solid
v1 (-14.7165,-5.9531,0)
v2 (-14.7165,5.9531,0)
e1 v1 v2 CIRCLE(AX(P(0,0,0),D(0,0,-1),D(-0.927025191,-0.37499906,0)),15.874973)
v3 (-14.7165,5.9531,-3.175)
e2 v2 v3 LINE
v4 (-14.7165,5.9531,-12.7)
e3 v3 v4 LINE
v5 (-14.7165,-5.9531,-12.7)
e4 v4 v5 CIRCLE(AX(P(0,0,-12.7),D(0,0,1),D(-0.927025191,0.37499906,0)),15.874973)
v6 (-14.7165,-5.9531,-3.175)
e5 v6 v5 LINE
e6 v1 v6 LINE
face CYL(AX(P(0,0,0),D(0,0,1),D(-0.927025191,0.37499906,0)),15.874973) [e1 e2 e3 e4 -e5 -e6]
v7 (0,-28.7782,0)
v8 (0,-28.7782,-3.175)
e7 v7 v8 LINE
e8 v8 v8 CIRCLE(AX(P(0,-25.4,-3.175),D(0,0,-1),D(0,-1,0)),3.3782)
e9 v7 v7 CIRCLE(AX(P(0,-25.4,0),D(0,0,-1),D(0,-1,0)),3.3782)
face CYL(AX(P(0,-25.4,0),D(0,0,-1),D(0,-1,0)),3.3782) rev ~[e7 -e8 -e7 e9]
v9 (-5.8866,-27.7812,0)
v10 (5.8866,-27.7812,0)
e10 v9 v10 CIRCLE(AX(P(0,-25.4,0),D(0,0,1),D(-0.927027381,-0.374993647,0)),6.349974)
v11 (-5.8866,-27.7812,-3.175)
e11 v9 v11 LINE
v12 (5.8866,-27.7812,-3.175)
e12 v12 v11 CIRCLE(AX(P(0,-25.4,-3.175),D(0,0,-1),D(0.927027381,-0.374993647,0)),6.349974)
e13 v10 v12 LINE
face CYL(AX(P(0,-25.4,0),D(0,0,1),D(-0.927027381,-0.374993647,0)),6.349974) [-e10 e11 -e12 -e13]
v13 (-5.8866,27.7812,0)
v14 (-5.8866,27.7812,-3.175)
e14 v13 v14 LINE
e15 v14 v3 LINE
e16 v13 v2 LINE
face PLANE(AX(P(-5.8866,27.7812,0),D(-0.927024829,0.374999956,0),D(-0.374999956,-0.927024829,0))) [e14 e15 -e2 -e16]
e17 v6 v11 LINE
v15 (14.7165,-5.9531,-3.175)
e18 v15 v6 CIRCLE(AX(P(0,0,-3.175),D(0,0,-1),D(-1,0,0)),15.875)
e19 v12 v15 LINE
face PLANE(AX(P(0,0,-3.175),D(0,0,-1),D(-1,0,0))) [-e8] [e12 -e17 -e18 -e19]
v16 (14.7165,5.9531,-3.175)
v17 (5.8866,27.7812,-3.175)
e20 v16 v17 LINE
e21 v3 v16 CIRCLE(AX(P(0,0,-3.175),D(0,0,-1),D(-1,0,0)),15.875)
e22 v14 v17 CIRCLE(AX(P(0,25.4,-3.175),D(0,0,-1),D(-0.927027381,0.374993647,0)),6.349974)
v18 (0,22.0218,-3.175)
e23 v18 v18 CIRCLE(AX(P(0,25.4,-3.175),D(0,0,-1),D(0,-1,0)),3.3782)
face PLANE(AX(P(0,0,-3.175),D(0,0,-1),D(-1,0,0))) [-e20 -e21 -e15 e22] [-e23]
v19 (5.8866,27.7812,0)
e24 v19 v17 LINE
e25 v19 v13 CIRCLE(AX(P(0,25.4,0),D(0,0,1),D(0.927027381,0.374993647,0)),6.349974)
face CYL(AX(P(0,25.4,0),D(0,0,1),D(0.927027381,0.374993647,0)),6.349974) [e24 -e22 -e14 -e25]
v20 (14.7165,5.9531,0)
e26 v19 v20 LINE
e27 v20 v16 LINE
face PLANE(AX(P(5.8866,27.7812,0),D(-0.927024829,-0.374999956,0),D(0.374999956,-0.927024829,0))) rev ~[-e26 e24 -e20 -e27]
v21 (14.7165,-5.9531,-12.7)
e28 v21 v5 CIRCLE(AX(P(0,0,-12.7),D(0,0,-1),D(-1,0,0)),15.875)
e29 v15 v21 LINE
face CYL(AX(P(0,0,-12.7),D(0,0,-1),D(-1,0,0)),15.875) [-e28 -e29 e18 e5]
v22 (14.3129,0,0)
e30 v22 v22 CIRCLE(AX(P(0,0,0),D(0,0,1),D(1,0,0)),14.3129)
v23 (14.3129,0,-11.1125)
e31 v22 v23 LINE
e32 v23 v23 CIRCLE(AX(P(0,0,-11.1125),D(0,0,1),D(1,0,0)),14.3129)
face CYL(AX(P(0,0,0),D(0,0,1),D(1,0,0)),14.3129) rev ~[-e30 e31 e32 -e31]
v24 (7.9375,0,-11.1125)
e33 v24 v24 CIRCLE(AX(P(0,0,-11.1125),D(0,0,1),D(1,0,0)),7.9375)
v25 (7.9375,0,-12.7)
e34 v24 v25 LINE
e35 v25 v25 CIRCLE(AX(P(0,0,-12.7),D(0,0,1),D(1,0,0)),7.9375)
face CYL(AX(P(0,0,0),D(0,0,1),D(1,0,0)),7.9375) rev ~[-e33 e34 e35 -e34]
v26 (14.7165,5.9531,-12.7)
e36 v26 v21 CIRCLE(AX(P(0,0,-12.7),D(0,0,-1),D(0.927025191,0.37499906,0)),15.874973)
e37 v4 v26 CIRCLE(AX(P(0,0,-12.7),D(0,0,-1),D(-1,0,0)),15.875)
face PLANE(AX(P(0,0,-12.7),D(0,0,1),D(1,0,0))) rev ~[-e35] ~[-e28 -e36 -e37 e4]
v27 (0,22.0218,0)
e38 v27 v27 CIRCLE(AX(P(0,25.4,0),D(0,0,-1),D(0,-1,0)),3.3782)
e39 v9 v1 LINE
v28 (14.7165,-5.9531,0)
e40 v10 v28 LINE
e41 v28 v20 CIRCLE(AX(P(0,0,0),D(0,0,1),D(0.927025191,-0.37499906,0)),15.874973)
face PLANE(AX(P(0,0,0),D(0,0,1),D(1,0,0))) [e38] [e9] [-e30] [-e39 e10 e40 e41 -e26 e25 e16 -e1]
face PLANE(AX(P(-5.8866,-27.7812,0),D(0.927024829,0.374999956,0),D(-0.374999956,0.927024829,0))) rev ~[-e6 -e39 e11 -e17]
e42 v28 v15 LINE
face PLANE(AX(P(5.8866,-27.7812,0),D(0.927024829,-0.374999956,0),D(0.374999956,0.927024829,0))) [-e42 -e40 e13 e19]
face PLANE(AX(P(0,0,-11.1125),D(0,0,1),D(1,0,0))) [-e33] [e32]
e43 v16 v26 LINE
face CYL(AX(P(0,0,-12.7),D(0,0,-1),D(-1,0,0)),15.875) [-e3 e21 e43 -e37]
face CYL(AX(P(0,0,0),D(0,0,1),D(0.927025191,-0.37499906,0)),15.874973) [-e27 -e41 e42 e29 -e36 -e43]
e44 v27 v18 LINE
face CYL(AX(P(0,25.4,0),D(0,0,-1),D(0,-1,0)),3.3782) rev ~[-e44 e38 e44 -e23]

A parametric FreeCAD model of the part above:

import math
import FreeCAD as App
import Part
import Sketcher

V = App.Vector
Q = App.Units.Quantity

doc = App.newDocument("Part")
body = doc.addObject("PartDesign::Body", "Body")

# Sketch on XY plane
sketch1 = doc.addObject("Sketcher::SketchObject", "Sketch")
body.addObject(sketch1)
sketch1.AttachmentSupport = (doc.XY_Plane, [""])
sketch1.MapMode = "FlatFace"
sketch1.addGeometry([
    Part.ArcOfCircle(Part.Circle(V(0, 0, 0), V(0, 0, 1), 16), math.radians(158), math.radians(202)),  # 0
    Part.LineSegment(V(-15, -6, 0), V(-6, -28, 0)),  # 1
    Part.ArcOfCircle(Part.Circle(V(0, -25, 0), V(0, 0, 1), 6), math.radians(-158), math.radians(-22)),  # 2
    Part.LineSegment(V(6, -28, 0), V(15, -6, 0)),  # 3
    Part.ArcOfCircle(Part.Circle(V(0, 0, 0), V(0, 0, 1), 16), math.radians(-22), math.radians(22)),  # 4
    Part.LineSegment(V(15, 6, 0), V(6, 28, 0)),  # 5
    Part.ArcOfCircle(Part.Circle(V(0, 25, 0), V(0, 0, 1), 6), math.radians(22), math.radians(158)),  # 6
    Part.LineSegment(V(-6, 28, 0), V(-15, 6, 0)),  # 7
    Part.Circle(V(0, 0, 0), V(0, 0, 1), 8),  # 8
], False)
sketch1.addConstraint([
    Sketcher.Constraint("Tangent", 0, 2, 1, 1),
    Sketcher.Constraint("Tangent", 1, 2, 2, 1),
    Sketcher.Constraint("Tangent", 2, 2, 3, 1),
    Sketcher.Constraint("Tangent", 3, 2, 4, 1),
    Sketcher.Constraint("Tangent", 4, 2, 5, 1),
    Sketcher.Constraint("Tangent", 5, 2, 6, 1),
    Sketcher.Constraint("Tangent", 6, 2, 7, 1),
    Sketcher.Constraint("Tangent", 7, 2, 0, 1),
    Sketcher.Constraint("Coincident", 0, 3, -1, 1),
    Sketcher.Constraint("Coincident", 4, 3, -1, 1),
    Sketcher.Constraint("Coincident", 8, 3, -1, 1),
    Sketcher.Constraint("Equal", 0, 4),
    Sketcher.Constraint("Equal", 2, 6),
    Sketcher.Constraint("Symmetric", 2, 3, 6, 3, -1, 1),
    Sketcher.Constraint("PointOnObject", 2, 3, -2),
    Sketcher.Constraint("Radius", 2, Q("0.25 in")),
    Sketcher.Constraint("Diameter", 8, Q("0.625 in")),
    Sketcher.Constraint("DistanceY", 2, 3, -1, 1, Q("1 in")),
    Sketcher.Constraint("Radius", 0, Q("0.625 in")),
])
pad1 = doc.addObject("PartDesign::Pad", "Pad")
body.addObject(pad1)
pad1.Profile = sketch1
pad1.Length = Q("0.5 in")
pad1.Reversed = True

# Sketch on XY plane
sketch2 = doc.addObject("Sketcher::SketchObject", "Sketch001")
body.addObject(sketch2)
sketch2.AttachmentSupport = (doc.XY_Plane, [""])
sketch2.MapMode = "FlatFace"
sketch2.AttachmentOffset = App.Placement(V(0, 0, -0.5 * 25.4), App.Rotation())
sketch2.addGeometry([
    Part.LineSegment(V(15, -6, 0), V(6, -28, 0)),  # 0
    Part.ArcOfCircle(Part.Circle(V(0, -25, 0), V(0, 0, 1), 6), math.radians(-158), math.radians(-22)),  # 1
    Part.LineSegment(V(-6, -28, 0), V(-15, -6, 0)),  # 2
    Part.ArcOfCircle(Part.Circle(V(0, 0, 0), V(0, 0, 1), 16), math.radians(-158), math.radians(-22)),  # 3
    Part.LineSegment(V(6, 28, 0), V(15, 6, 0)),  # 4
    Part.ArcOfCircle(Part.Circle(V(0, 0, 0), V(0, 0, 1), 16), math.radians(22), math.radians(158)),  # 5
    Part.LineSegment(V(-15, 6, 0), V(-6, 28, 0)),  # 6
    Part.ArcOfCircle(Part.Circle(V(0, 25, 0), V(0, 0, 1), 6), math.radians(22), math.radians(158)),  # 7
], False)
sketch2.addConstraint([
    Sketcher.Constraint("Tangent", 0, 2, 1, 2),
    Sketcher.Constraint("Tangent", 1, 1, 2, 1),
    Sketcher.Constraint("Tangent", 2, 2, 3, 1),
    Sketcher.Constraint("Tangent", 3, 2, 0, 1),
    Sketcher.Constraint("Tangent", 4, 2, 5, 1),
    Sketcher.Constraint("Tangent", 5, 2, 6, 1),
    Sketcher.Constraint("Tangent", 6, 2, 7, 2),
    Sketcher.Constraint("Tangent", 7, 1, 4, 1),
    Sketcher.Constraint("Coincident", 3, 3, -1, 1),
    Sketcher.Constraint("Coincident", 5, 3, -1, 1),
    Sketcher.Constraint("Equal", 3, 5),
    Sketcher.Constraint("Equal", 1, 7),
    Sketcher.Constraint("Symmetric", 1, 3, 7, 3, -1, 1),
    Sketcher.Constraint("PointOnObject", 1, 3, -2),
    Sketcher.Constraint("Radius", 1, Q("0.25 in")),
    Sketcher.Constraint("DistanceY", 1, 3, -1, 1, Q("1 in")),
    Sketcher.Constraint("Radius", 3, Q("0.625 in")),
])
pocket1 = doc.addObject("PartDesign::Pocket", "Pocket")
body.addObject(pocket1)
pocket1.Profile = sketch2
pocket1.Length = Q("0.375 in")
pocket1.Reversed = True

# Sketch on XY plane
sketch3 = doc.addObject("Sketcher::SketchObject", "Sketch002")
body.addObject(sketch3)
sketch3.AttachmentSupport = (doc.XY_Plane, [""])
sketch3.MapMode = "FlatFace"
sketch3.addGeometry([
    Part.Circle(V(0, 0, 0), V(0, 0, 1), 14),
    Part.Circle(V(0, 0, 0), V(0, 0, 1), 8),
], False)
sketch3.addConstraint([
    Sketcher.Constraint("Coincident", 0, 3, -1, 1),
    Sketcher.Constraint("Coincident", 1, 3, -1, 1),
    Sketcher.Constraint("Diameter", 0, Q("1.127 in")),
    Sketcher.Constraint("Diameter", 1, Q("0.625 in")),
])
pocket2 = doc.addObject("PartDesign::Pocket", "Pocket001")
body.addObject(pocket2)
pocket2.Profile = sketch3
pocket2.Length = Q("0.4375 in")

# Sketch on XY plane
sketch4 = doc.addObject("Sketcher::SketchObject", "Sketch003")
body.addObject(sketch4)
sketch4.AttachmentSupport = (doc.XY_Plane, [""])
sketch4.MapMode = "FlatFace"
sketch4.addGeometry([
    Part.Circle(V(0, 25.4, 0), V(0, 0, 1), 3.4),
    Part.Circle(V(0, -25.4, 0), V(0, 0, 1), 3.4),
], False)
sketch4.addConstraint([
    Sketcher.Constraint("Equal", 0, 1),
    Sketcher.Constraint("Symmetric", 0, 3, 1, 3, -1, 1),
    Sketcher.Constraint("PointOnObject", 0, 3, -2),
    Sketcher.Constraint("Diameter", 0, Q("0.266 in")),
    Sketcher.Constraint("DistanceY", -1, 1, 0, 3, Q("1 in")),
])
doc.recompute()
hole = doc.addObject("PartDesign::Hole", "Hole")
body.addObject(hole)
hole.Profile = sketch4
hole.ThreadType = "None"
hole.Diameter = Q("0.266 in")
hole.DepthType = "ThroughAll"

doc.recompute()
